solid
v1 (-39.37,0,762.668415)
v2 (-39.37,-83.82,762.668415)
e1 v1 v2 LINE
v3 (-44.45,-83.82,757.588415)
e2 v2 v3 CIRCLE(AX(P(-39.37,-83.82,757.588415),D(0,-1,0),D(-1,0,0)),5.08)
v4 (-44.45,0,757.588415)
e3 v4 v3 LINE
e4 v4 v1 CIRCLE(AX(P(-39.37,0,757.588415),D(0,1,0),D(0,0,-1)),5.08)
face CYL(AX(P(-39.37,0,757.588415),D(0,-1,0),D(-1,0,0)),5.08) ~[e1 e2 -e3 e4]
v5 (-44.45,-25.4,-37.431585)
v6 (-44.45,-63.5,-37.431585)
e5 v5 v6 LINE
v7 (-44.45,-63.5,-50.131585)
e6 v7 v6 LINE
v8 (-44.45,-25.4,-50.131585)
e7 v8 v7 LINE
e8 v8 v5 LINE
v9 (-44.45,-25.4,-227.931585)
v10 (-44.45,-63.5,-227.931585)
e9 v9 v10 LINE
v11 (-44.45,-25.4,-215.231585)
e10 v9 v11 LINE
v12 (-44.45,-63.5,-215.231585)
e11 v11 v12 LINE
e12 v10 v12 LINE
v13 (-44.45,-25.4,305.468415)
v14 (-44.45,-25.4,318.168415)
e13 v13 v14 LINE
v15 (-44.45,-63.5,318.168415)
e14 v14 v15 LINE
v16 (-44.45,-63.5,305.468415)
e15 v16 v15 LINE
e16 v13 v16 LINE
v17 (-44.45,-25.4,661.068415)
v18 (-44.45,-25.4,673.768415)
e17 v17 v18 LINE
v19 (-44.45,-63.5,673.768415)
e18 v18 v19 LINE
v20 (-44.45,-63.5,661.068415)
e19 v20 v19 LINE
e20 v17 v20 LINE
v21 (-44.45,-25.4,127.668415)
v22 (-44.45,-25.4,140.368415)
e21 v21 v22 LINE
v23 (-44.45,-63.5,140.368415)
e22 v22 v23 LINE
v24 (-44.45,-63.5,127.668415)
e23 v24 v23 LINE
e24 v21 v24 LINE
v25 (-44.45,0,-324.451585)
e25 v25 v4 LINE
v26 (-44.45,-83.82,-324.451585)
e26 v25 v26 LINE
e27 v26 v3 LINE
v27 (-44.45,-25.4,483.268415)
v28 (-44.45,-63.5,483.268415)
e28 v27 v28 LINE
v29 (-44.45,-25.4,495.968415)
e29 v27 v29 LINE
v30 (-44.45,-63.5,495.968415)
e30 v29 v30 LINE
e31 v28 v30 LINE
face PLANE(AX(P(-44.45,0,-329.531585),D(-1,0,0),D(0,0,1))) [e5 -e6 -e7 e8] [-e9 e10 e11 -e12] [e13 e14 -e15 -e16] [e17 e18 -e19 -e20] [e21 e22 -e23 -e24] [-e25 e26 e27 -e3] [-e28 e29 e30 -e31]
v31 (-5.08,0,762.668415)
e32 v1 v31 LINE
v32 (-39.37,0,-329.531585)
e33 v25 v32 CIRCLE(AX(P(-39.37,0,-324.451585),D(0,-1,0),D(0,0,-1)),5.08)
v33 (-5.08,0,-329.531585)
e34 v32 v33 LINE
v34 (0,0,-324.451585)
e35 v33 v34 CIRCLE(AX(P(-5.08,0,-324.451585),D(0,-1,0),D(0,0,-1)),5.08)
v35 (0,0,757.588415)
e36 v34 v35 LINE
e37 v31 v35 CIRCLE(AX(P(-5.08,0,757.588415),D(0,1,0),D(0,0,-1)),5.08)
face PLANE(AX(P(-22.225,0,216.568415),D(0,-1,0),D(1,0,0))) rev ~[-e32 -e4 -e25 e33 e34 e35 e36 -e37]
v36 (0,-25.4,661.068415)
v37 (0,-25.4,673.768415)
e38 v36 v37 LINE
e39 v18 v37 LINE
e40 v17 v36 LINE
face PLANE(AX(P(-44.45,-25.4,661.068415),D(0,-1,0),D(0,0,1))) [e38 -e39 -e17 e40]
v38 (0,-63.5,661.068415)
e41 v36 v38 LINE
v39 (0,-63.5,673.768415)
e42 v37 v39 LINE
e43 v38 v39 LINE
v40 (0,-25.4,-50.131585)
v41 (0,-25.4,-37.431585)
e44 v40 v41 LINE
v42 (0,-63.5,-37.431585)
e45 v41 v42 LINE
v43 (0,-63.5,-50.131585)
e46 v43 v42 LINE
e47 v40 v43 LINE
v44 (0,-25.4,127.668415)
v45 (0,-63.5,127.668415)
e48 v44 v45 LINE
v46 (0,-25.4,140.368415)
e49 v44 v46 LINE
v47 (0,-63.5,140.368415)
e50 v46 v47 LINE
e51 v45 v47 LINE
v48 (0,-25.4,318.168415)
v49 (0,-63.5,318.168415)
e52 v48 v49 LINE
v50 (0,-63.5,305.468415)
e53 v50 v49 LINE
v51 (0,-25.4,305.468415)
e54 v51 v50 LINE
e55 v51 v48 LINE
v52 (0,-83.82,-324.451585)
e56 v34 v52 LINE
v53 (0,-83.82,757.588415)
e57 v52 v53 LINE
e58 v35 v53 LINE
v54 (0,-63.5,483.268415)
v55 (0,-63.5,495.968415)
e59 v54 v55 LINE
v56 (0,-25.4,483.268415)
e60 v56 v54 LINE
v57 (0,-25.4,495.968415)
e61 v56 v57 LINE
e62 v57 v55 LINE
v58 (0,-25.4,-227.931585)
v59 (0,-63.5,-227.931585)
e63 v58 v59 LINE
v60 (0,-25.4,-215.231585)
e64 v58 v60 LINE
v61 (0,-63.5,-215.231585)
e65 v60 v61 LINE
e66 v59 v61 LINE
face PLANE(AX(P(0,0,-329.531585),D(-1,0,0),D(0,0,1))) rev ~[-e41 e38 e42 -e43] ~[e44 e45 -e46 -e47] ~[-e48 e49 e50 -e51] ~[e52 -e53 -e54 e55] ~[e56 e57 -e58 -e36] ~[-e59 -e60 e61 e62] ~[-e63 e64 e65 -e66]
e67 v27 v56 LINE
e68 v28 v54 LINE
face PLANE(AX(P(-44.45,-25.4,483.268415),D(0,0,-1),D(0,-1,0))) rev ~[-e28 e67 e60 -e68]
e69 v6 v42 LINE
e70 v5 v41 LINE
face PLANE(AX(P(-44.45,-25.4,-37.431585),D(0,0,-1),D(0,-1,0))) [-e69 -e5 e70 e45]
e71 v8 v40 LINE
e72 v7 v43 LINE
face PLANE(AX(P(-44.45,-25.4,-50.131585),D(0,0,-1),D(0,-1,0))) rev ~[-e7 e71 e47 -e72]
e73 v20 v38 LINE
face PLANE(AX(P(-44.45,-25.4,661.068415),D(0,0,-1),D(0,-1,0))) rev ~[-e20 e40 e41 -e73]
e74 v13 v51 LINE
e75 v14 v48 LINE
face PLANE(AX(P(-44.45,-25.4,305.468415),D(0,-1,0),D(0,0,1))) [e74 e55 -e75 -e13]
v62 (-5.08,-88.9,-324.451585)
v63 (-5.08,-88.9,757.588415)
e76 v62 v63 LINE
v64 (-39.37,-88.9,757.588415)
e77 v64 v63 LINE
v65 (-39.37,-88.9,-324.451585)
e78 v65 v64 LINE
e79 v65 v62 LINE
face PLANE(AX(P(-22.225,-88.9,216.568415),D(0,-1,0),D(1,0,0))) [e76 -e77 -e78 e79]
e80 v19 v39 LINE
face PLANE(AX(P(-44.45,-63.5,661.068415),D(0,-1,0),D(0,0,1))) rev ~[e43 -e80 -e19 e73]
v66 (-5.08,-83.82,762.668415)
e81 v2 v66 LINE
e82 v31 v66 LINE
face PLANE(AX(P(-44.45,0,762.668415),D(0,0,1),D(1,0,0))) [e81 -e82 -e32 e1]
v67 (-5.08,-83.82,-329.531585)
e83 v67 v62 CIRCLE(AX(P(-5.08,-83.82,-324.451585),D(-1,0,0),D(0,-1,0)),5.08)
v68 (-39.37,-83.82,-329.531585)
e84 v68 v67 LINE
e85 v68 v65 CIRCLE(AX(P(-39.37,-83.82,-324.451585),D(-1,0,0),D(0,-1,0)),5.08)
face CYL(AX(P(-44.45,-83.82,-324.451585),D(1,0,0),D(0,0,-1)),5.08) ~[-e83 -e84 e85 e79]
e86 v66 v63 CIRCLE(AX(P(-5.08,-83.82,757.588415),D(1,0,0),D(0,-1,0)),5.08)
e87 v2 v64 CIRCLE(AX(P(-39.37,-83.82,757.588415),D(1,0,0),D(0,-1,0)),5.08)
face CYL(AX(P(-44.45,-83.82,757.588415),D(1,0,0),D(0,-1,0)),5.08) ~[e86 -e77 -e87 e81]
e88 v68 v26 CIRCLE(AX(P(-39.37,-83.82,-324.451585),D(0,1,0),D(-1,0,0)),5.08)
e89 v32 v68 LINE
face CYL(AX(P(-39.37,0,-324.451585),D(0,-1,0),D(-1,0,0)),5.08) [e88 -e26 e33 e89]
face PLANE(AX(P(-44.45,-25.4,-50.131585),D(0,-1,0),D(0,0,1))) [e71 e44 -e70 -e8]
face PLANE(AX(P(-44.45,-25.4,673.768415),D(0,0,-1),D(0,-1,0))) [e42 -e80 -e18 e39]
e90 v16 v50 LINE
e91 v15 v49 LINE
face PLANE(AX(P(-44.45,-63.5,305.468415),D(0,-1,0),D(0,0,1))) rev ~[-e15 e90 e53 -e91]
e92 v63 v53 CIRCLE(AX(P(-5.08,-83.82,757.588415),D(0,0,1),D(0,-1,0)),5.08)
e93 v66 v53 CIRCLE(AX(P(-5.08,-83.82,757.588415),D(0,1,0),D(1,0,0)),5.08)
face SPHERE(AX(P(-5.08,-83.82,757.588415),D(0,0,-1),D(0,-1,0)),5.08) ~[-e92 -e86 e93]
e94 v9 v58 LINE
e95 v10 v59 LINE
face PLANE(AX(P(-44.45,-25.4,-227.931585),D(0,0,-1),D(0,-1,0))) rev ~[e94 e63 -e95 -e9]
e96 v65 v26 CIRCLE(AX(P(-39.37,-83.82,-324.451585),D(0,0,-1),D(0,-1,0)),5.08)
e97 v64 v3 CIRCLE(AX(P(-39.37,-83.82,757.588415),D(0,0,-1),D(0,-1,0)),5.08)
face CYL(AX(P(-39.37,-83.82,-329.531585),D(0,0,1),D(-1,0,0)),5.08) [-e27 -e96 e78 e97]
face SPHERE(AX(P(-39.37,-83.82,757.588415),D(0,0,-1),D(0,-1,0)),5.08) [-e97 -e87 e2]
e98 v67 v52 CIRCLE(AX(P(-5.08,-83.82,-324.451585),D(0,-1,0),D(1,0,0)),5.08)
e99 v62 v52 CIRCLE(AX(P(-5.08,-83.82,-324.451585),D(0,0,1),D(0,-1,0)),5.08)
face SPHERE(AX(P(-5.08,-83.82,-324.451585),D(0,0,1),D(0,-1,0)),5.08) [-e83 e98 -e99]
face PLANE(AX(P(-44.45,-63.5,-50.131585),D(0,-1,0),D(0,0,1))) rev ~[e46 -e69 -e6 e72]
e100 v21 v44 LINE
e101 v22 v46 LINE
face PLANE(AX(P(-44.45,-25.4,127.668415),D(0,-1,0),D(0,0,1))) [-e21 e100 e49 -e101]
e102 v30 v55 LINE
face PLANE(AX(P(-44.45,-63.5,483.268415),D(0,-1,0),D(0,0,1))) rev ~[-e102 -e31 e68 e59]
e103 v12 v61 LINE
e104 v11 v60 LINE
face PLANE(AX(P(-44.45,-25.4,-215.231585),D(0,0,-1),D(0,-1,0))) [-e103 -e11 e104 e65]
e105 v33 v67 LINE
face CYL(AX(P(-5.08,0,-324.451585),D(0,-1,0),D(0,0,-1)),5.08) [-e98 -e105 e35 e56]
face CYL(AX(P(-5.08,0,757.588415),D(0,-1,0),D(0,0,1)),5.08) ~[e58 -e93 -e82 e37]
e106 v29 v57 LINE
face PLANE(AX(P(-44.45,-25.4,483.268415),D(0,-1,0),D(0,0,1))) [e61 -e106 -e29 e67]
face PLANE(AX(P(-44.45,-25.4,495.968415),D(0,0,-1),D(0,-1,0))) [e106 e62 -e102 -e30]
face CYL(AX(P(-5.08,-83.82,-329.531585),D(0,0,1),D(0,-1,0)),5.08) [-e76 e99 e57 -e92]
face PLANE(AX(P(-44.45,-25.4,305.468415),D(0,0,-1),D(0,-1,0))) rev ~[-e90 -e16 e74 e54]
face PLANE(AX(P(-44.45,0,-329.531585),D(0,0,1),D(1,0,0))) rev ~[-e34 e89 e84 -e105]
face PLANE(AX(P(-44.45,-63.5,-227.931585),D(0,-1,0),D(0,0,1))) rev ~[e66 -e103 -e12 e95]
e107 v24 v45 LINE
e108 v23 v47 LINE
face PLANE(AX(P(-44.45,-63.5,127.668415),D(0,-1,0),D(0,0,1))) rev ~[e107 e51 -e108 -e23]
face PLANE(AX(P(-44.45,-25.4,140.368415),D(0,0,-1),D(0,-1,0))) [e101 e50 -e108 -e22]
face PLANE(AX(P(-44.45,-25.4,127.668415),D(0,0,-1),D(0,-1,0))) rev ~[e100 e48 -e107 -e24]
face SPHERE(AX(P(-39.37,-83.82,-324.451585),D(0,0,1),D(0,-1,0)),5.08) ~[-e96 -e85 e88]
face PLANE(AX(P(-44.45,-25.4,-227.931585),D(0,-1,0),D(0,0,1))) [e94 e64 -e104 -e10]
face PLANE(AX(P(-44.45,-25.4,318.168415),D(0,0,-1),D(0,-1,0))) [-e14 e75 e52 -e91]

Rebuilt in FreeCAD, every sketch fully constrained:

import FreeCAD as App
import Part
import Sketcher

V = App.Vector
Q = App.Units.Quantity


def edges_at(feature, points):
    """Names of the edges that pass closest to the given points."""
    edges = feature.Shape.Edges
    near = lambda p: min(range(len(edges)), key=lambda i: edges[i].distToShape(Part.Vertex(*p))[0])
    return sorted({f"Edge{near(p) + 1}" for p in points})


def add_polygon(sketch, points):
    """Adds a closed chain of lines whose ends are joined by coincident constraints."""
    first, n = sketch.GeometryCount, len(points)
    for a, b in zip(points, points[1:] + points[:1]):
        sketch.addGeometry(Part.LineSegment(App.Vector(*a, 0), App.Vector(*b, 0)), False)
    for i in range(n):
        sketch.addConstraint(Sketcher.Constraint("Coincident", first + i, 2, first + (i + 1) % n, 1))

doc = App.newDocument("Part")
body = doc.addObject("PartDesign::Body", "Body")

sketch1 = body.newObject("Sketcher::SketchObject", "Sketch")
sketch1.AttachmentSupport = (doc.getObject("XZ_Plane"), [""])
sketch1.MapMode = "FlatFace"
add_polygon(sketch1, [(-44, 763), (-44, -330), (0, -330), (0, 763)])
sketch1.addConstraint([
    Sketcher.Constraint("Vertical", 0),
    Sketcher.Constraint("Horizontal", 1),
    Sketcher.Constraint("Vertical", 2),
    Sketcher.Constraint("Horizontal", 3),
    Sketcher.Constraint("PointOnObject", 1, 2, -2),
    Sketcher.Constraint("DistanceY", 0, 2, 0, 1, Q("43 in")),
    Sketcher.Constraint("DistanceX", 1, 1, 1, 2, Q("1.75 in")),
    Sketcher.Constraint("DistanceY", 0, 2, -1, 1, 329.531585),
])
pad1 = body.newObject("PartDesign::Pad", "Pad")
pad1.Profile = sketch1
pad1.Length = Q("3.5 in")

sketch2 = body.newObject("Sketcher::SketchObject", "Sketch001")
sketch2.AttachmentSupport = (doc.getObject("YZ_Plane"), [""])
sketch2.MapMode = "FlatFace"
sketch2.AttachmentOffset = App.Placement(V(0, 0, -1.75 * 25.4), App.Rotation())
add_polygon(sketch2, [(-25, 674), (-25, 661), (-64, 661), (-64, 674)])
add_polygon(sketch2, [(-25, -37), (-25, -50), (-64, -50), (-64, -37)])
add_polygon(sketch2, [(-25, 140), (-25, 128), (-64, 128), (-64, 140)])
add_polygon(sketch2, [(-25, 318), (-25, 305), (-64, 305), (-64, 318)])
add_polygon(sketch2, [(-25, -215), (-25, -228), (-64, -228), (-64, -215)])
add_polygon(sketch2, [(-25, 496), (-25, 483), (-64, 483), (-64, 496)])
sketch2.addConstraint([
    Sketcher.Constraint("Vertical", 0),
    Sketcher.Constraint("Horizontal", 1),
    Sketcher.Constraint("Vertical", 2),
    Sketcher.Constraint("Horizontal", 3),
    Sketcher.Constraint("Vertical", 4),
    Sketcher.Constraint("Horizontal", 5),
    Sketcher.Constraint("Vertical", 6),
    Sketcher.Constraint("Horizontal", 7),
    Sketcher.Constraint("Vertical", 8),
    Sketcher.Constraint("Horizontal", 9),
    Sketcher.Constraint("Vertical", 10),
    Sketcher.Constraint("Horizontal", 11),
    Sketcher.Constraint("Vertical", 12),
    Sketcher.Constraint("Horizontal", 13),
    Sketcher.Constraint("Vertical", 14),
    Sketcher.Constraint("Horizontal", 15),
    Sketcher.Constraint("Vertical", 16),
    Sketcher.Constraint("Horizontal", 17),
    Sketcher.Constraint("Vertical", 18),
    Sketcher.Constraint("Horizontal", 19),
    Sketcher.Constraint("Vertical", 20),
    Sketcher.Constraint("Horizontal", 21),
    Sketcher.Constraint("Vertical", 22),
    Sketcher.Constraint("Horizontal", 23),
    Sketcher.Constraint("Vertical", 3, 2, 4, 2),
    Sketcher.Constraint("Vertical", 2, 2, 5, 2),
    Sketcher.Constraint("Vertical", 7, 2, 8, 2),
    Sketcher.Constraint("Vertical", 6, 2, 9, 2),
    Sketcher.Constraint("Vertical", 11, 2, 12, 2),
    Sketcher.Constraint("Vertical", 10, 2, 13, 2),
    Sketcher.Constraint("Vertical", 15, 2, 16, 2),
    Sketcher.Constraint("Vertical", 14, 2, 17, 2),
    Sketcher.Constraint("Vertical", 19, 2, 20, 2),
    Sketcher.Constraint("Vertical", 18, 2, 21, 2),
    Sketcher.Constraint("Equal", 2, 4),
    Sketcher.Constraint("Equal", 6, 8),
    Sketcher.Constraint("Equal", 10, 12),
    Sketcher.Constraint("Equal", 14, 16),
    Sketcher.Constraint("Equal", 18, 20),
    Sketcher.Constraint("DistanceX", 1, 2, 1, 1, Q("1.5 in")),
    Sketcher.Constraint("DistanceY", 0, 2, 0, 1, Q("0.5 in")),
    Sketcher.Constraint("DistanceX", 0, 2, -1, 1, Q("1 in")),
    Sketcher.Constraint("DistanceY", 4, 2, 0, 2, Q("28 in")),
    Sketcher.Constraint("DistanceY", 4, 2, 8, 2, Q("7 in")),
    Sketcher.Constraint("DistanceY", 8, 2, 12, 2, Q("7 in")),
    Sketcher.Constraint("DistanceY", 16, 2, 4, 2, Q("7 in")),
    Sketcher.Constraint("DistanceY", 20, 2, 0, 2, Q("7 in")),
    Sketcher.Constraint("DistanceY", -1, 1, 0, 2, 661.068415),
])
pocket1 = body.newObject("PartDesign::Pocket", "Pocket")
pocket1.Profile = sketch2
pocket1.Type = "ThroughAll"
pocket1.Reversed = True
doc.recompute()

fillet = body.newObject("PartDesign::Fillet", "Fillet")
fillet.Base = (pocket1, edges_at(pocket1, [
    (-44.45, -88.9, 216.568),
    (0, -88.9, 216.568),
    (-22.225, -88.9, 762.668),
    (0, -44.45, 762.668),
    (-44.45, -44.45, 762.668),
    (-22.225, -88.9, -329.532),
    (0, -44.45, -329.532),
    (-44.45, -44.45, -329.532),
]))
fillet.Radius = Q("0.2 in")

doc.recompute()
